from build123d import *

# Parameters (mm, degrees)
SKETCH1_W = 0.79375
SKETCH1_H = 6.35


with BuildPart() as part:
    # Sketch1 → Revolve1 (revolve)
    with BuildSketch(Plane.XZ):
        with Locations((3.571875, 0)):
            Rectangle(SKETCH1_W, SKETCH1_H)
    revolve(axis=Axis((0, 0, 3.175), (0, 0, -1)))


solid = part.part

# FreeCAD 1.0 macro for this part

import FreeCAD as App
import Part
import Sketcher
from FreeCAD import Vector
Q = App.Units.Quantity


def add_polygon(sketch, points):
    """Adds a closed chain of lines whose ends are joined by coincident constraints."""
    first, n = sketch.GeometryCount, len(points)
    for a, b in zip(points, points[1:] + points[:1]):
        sketch.addGeometry(Part.LineSegment(App.Vector(*a, 0), App.Vector(*b, 0)), False)
    for i in range(n):
        sketch.addConstraint(Sketcher.Constraint("Coincident", first + i, 2, first + (i + 1) % n, 1))

doc = App.newDocument("Part")
params = doc.addObject("Spreadsheet::Sheet", "Params")
for row, (alias, value) in enumerate([
    ("sketch1_height", "0.25 in"),
    ("sketch1_width", "0.03125 in"),
    ("revolution_angle", "360 deg"),
], start=1):
    params.set(f"A{row}", alias)
    params.set(f"B{row}", "=" + value)
    params.setAlias(f"B{row}", alias)

body = doc.addObject("PartDesign::Body", "Body")

sketch1 = doc.addObject("Sketcher::SketchObject", "Sketch")
body.addObject(sketch1)
sketch1.AttachmentSupport = (doc.XZ_Plane, [""])
sketch1.MapMode = "FlatFace"
add_polygon(sketch1, [(3.2, 3.2), (3.2, -3.2), (4, -3.2), (4, 3.2)])
sketch1.addConstraint([
    Sketcher.Constraint("Vertical", 0),
    Sketcher.Constraint("Horizontal", 1),
    Sketcher.Constraint("Vertical", 2),
    Sketcher.Constraint("Horizontal", 3),
    Sketcher.Constraint("DistanceY", 0, 2, 0, 1, Q("0.25 in")),
    Sketcher.Constraint("DistanceX", 1, 1, 1, 2, Q("0.03125 in")),
    Sketcher.Constraint("DistanceX", -1, 1, 0, 2, Q("0.125 in")),
    Sketcher.Constraint("DistanceY", 0, 2, -1, 1, Q("0.125 in")),
])
sketch1.setExpression("Constraints[8]", "Params.sketch1_height")
sketch1.setExpression("Constraints[9]", "Params.sketch1_width")
revolution = doc.addObject("PartDesign::Revolution", "Revolution")
body.addObject(revolution)
revolution.Profile = sketch1
revolution.ReferenceAxis = (sketch1, ["V_Axis"])
revolution.setExpression("Angle", "Params.revolution_angle")

doc.recompute()
